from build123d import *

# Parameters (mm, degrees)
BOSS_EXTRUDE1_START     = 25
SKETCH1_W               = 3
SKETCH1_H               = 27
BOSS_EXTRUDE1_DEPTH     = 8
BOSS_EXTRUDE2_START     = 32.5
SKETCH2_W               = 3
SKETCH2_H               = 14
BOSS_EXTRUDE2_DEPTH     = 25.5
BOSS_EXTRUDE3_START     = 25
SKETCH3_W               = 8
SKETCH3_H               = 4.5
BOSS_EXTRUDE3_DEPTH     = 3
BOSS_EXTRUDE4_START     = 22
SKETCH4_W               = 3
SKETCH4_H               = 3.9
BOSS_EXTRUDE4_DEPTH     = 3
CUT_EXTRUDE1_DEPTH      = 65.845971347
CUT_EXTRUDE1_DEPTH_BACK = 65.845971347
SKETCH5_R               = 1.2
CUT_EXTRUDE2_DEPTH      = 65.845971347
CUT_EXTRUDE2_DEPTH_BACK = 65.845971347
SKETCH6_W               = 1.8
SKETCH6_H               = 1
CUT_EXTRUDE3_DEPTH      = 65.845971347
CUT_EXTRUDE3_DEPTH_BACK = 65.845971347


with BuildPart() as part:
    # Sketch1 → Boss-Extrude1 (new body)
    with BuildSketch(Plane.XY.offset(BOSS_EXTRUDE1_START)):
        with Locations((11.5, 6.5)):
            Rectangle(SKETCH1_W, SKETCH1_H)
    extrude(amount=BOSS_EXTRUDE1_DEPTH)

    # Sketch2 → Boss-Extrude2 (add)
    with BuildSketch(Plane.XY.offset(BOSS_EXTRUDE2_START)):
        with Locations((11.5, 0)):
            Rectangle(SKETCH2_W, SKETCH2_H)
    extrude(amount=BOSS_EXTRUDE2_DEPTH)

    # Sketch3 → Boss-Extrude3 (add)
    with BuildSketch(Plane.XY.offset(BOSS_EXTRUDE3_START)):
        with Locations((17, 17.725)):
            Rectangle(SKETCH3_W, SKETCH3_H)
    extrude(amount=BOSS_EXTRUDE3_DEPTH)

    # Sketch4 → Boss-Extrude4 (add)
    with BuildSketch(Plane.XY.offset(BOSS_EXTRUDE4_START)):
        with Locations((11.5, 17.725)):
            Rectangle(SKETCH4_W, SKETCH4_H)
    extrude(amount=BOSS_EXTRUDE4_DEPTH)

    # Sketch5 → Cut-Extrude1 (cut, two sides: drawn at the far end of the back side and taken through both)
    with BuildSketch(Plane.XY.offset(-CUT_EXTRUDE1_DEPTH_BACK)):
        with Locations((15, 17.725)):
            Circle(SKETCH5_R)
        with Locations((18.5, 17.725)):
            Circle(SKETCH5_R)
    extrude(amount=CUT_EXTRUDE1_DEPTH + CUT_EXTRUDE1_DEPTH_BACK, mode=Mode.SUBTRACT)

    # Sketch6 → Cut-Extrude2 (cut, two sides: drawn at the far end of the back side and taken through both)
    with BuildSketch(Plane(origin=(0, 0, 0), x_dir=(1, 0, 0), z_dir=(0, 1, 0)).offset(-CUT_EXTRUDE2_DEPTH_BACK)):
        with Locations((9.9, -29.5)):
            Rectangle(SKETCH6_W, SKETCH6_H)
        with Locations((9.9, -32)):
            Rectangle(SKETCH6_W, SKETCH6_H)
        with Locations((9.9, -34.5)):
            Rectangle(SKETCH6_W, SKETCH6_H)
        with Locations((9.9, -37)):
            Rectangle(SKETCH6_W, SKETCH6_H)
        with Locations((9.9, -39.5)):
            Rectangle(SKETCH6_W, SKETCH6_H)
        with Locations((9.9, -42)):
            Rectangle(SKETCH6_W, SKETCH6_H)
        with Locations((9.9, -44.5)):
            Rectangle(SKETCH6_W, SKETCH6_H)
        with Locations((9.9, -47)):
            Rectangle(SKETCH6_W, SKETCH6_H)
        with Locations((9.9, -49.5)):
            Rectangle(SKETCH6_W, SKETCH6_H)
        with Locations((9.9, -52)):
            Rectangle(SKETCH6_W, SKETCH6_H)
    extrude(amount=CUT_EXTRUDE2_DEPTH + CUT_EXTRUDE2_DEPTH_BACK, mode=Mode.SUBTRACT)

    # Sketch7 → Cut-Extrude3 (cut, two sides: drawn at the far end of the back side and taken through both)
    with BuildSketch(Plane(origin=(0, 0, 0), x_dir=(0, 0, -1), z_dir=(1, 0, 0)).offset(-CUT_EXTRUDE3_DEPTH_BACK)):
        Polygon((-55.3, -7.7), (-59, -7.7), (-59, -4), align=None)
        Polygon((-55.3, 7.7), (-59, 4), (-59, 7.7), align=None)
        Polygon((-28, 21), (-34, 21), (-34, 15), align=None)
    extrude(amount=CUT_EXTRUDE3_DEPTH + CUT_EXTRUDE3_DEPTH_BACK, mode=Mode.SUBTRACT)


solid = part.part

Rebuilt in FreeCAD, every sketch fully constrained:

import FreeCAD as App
import Part
import Sketcher


def add_polygon(sketch, points):
    """Adds a closed chain of lines whose ends are joined by coincident constraints."""
    first, n = sketch.GeometryCount, len(points)
    for a, b in zip(points, points[1:] + points[:1]):
        sketch.addGeometry(Part.LineSegment(App.Vector(*a, 0), App.Vector(*b, 0)), False)
    for i in range(n):
        sketch.addConstraint(Sketcher.Constraint("Coincident", first + i, 2, first + (i + 1) % n, 1))

doc = App.newDocument("Part")
body = doc.addObject("PartDesign::Body", "Body")

sketch1 = body.newObject("Sketcher::SketchObject", "Sketch")
sketch1.AttachmentSupport = (doc.getObject("XY_Plane"), [""])
sketch1.MapMode = "FlatFace"
sketch1.AttachmentOffset = App.Placement(App.Vector(0, 0, 25), App.Rotation())
add_polygon(sketch1, [(10, 20), (10, -7), (13, -7), (13, 20)])
sketch1.addConstraint([
    Sketcher.Constraint("Vertical", 0),
    Sketcher.Constraint("Horizontal", 1),
    Sketcher.Constraint("Vertical", 2),
    Sketcher.Constraint("Horizontal", 3),
    Sketcher.Constraint("DistanceX", 1, 1, 1, 2, 3.0),
    Sketcher.Constraint("DistanceY", 0, 2, 0, 1, 27.0),
    Sketcher.Constraint("DistanceX", -1, 1, 0, 2, 10.0),
    Sketcher.Constraint("DistanceY", 0, 2, -1, 1, 7.0),
])
pad1 = body.newObject("PartDesign::Pad", "Pad")
pad1.Profile = sketch1
pad1.Length = 8

sketch2 = body.newObject("Sketcher::SketchObject", "Sketch001")
sketch2.AttachmentSupport = (doc.getObject("XY_Plane"), [""])
sketch2.MapMode = "FlatFace"
sketch2.AttachmentOffset = App.Placement(App.Vector(0, 0, 32.5), App.Rotation())
add_polygon(sketch2, [(10, 7), (10, -7), (13, -7), (13, 7)])
sketch2.addConstraint([
    Sketcher.Constraint("Vertical", 0),
    Sketcher.Constraint("Horizontal", 1),
    Sketcher.Constraint("Vertical", 2),
    Sketcher.Constraint("Horizontal", 3),
    Sketcher.Constraint("DistanceX", 1, 1, 1, 2, 3.0),
    Sketcher.Constraint("DistanceY", 0, 2, 0, 1, 14.0),
    Sketcher.Constraint("DistanceX", -1, 1, 0, 2, 10.0),
    Sketcher.Constraint("DistanceY", 0, 2, -1, 1, 7.0),
])
pad2 = body.newObject("PartDesign::Pad", "Pad001")
pad2.Profile = sketch2
pad2.Length = 25.5

sketch3 = body.newObject("Sketcher::SketchObject", "Sketch002")
sketch3.AttachmentSupport = (doc.getObject("XY_Plane"), [""])
sketch3.MapMode = "FlatFace"
sketch3.AttachmentOffset = App.Placement(App.Vector(0, 0, 25), App.Rotation())
add_polygon(sketch3, [(13, 20), (13, 15.5), (21, 15.5), (21, 20)])
sketch3.addConstraint([
    Sketcher.Constraint("Vertical", 0),
    Sketcher.Constraint("Horizontal", 1),
    Sketcher.Constraint("Vertical", 2),
    Sketcher.Constraint("Horizontal", 3),
    Sketcher.Constraint("DistanceX", 1, 1, 1, 2, 8.0),
    Sketcher.Constraint("DistanceY", 0, 2, 0, 1, 4.5),
    Sketcher.Constraint("DistanceX", -1, 1, 0, 2, 13.0),
    Sketcher.Constraint("DistanceY", -1, 1, 0, 2, 15.475),
])
pad3 = body.newObject("PartDesign::Pad", "Pad002")
pad3.Profile = sketch3
pad3.Length = 3

sketch4 = body.newObject("Sketcher::SketchObject", "Sketch003")
sketch4.AttachmentSupport = (doc.getObject("XY_Plane"), [""])
sketch4.MapMode = "FlatFace"
sketch4.AttachmentOffset = App.Placement(App.Vector(0, 0, 22), App.Rotation())
add_polygon(sketch4, [(10, 19.7), (10, 15.8), (13, 15.8), (13, 19.7)])
sketch4.addConstraint([
    Sketcher.Constraint("Vertical", 0),
    Sketcher.Constraint("Horizontal", 1),
    Sketcher.Constraint("Vertical", 2),
    Sketcher.Constraint("Horizontal", 3),
    Sketcher.Constraint("DistanceX", 1, 1, 1, 2, 3.0),
    Sketcher.Constraint("DistanceY", 0, 2, 0, 1, 3.9),
    Sketcher.Constraint("DistanceX", -1, 1, 0, 2, 10.0),
    Sketcher.Constraint("DistanceY", -1, 1, 0, 2, 15.775),
])
pad4 = body.newObject("PartDesign::Pad", "Pad003")
pad4.Profile = sketch4
pad4.Length = 3

sketch5 = body.newObject("Sketcher::SketchObject", "Sketch004")
sketch5.AttachmentSupport = (doc.getObject("XY_Plane"), [""])
sketch5.MapMode = "FlatFace"
sketch5.addGeometry([
    Part.Circle(App.Vector(15, 17.7, 0), App.Vector(0, 0, 1), 1.2),
    Part.Circle(App.Vector(18.5, 17.7, 0), App.Vector(0, 0, 1), 1.2),
], False)
sketch5.addConstraint([
    Sketcher.Constraint("Equal", 0, 1),
    Sketcher.Constraint("Horizontal", 0, 3, 1, 3),
    Sketcher.Constraint("Diameter", 0, 2.4),
    Sketcher.Constraint("DistanceX", -1, 1, 0, 3, 15.0),
    Sketcher.Constraint("DistanceX", -1, 1, 1, 3, 18.5),
    Sketcher.Constraint("DistanceY", -1, 1, 0, 3, 17.725),
])
pocket1 = body.newObject("PartDesign::Pocket", "Pocket")
pocket1.Profile = sketch5
pocket1.Type = "ThroughAll"
pocket1.Midplane = True

sketch6 = body.newObject("Sketcher::SketchObject", "Sketch005")
sketch6.AttachmentSupport = (doc.getObject("XZ_Plane"), [""])
sketch6.MapMode = "FlatFace"
add_polygon(sketch6, [(9, 29), (9, 30), (10.8, 30), (10.8, 29)])
add_polygon(sketch6, [(9, 31.5), (9, 32.5), (10.8, 32.5), (10.8, 31.5)])
add_polygon(sketch6, [(9, 34), (9, 35), (10.8, 35), (10.8, 34)])
add_polygon(sketch6, [(9, 36.5), (9, 37.5), (10.8, 37.5), (10.8, 36.5)])
add_polygon(sketch6, [(9, 39), (9, 40), (10.8, 40), (10.8, 39)])
add_polygon(sketch6, [(9, 41.5), (9, 42.5), (10.8, 42.5), (10.8, 41.5)])
add_polygon(sketch6, [(9, 44), (9, 45), (10.8, 45), (10.8, 44)])
add_polygon(sketch6, [(9, 46.5), (9, 47.5), (10.8, 47.5), (10.8, 46.5)])
add_polygon(sketch6, [(9, 49), (9, 50), (10.8, 50), (10.8, 49)])
add_polygon(sketch6, [(9, 51.5), (9, 52.5), (10.8, 52.5), (10.8, 51.5)])
sketch6.addConstraint([
    Sketcher.Constraint("Vertical", 0),
    Sketcher.Constraint("Horizontal", 1),
    Sketcher.Constraint("Vertical", 2),
    Sketcher.Constraint("Horizontal", 3),
    Sketcher.Constraint("Vertical", 4),
    Sketcher.Constraint("Horizontal", 5),
    Sketcher.Constraint("Vertical", 6),
    Sketcher.Constraint("Horizontal", 7),
    Sketcher.Constraint("Vertical", 8),
    Sketcher.Constraint("Horizontal", 9),
    Sketcher.Constraint("Vertical", 10),
    Sketcher.Constraint("Horizontal", 11),
    Sketcher.Constraint("Vertical", 12),
    Sketcher.Constraint("Horizontal", 13),
    Sketcher.Constraint("Vertical", 14),
    Sketcher.Constraint("Horizontal", 15),
    Sketcher.Constraint("Vertical", 16),
    Sketcher.Constraint("Horizontal", 17),
    Sketcher.Constraint("Vertical", 18),
    Sketcher.Constraint("Horizontal", 19),
    Sketcher.Constraint("Vertical", 20),
    Sketcher.Constraint("Horizontal", 21),
    Sketcher.Constraint("Vertical", 22),
    Sketcher.Constraint("Horizontal", 23),
    Sketcher.Constraint("Vertical", 24),
    Sketcher.Constraint("Horizontal", 25),
    Sketcher.Constraint("Vertical", 26),
    Sketcher.Constraint("Horizontal", 27),
    Sketcher.Constraint("Vertical", 28),
    Sketcher.Constraint("Horizontal", 29),
    Sketcher.Constraint("Vertical", 30),
    Sketcher.Constraint("Horizontal", 31),
    Sketcher.Constraint("Vertical", 32),
    Sketcher.Constraint("Horizontal", 33),
    Sketcher.Constraint("Vertical", 34),
    Sketcher.Constraint("Horizontal", 35),
    Sketcher.Constraint("Vertical", 36),
    Sketcher.Constraint("Horizontal", 37),
    Sketcher.Constraint("Vertical", 38),
    Sketcher.Constraint("Horizontal", 39),
    Sketcher.Constraint("Vertical", 3, 2, 4, 2),
    Sketcher.Constraint("Vertical", 2, 2, 5, 2),
    Sketcher.Constraint("Vertical", 7, 2, 8, 2),
    Sketcher.Constraint("Vertical", 6, 2, 9, 2),
    Sketcher.Constraint("Vertical", 11, 2, 12, 2),
    Sketcher.Constraint("Vertical", 10, 2, 13, 2),
    Sketcher.Constraint("Vertical", 15, 2, 16, 2),
    Sketcher.Constraint("Vertical", 14, 2, 17, 2),
    Sketcher.Constraint("Vertical", 19, 2, 20, 2),
    Sketcher.Constraint("Vertical", 18, 2, 21, 2),
    Sketcher.Constraint("Vertical", 23, 2, 24, 2),
    Sketcher.Constraint("Vertical", 22, 2, 25, 2),
    Sketcher.Constraint("Vertical", 27, 2, 28, 2),
    Sketcher.Constraint("Vertical", 26, 2, 29, 2),
    Sketcher.Constraint("Vertical", 31, 2, 32, 2),
    Sketcher.Constraint("Vertical", 30, 2, 33, 2),
    Sketcher.Constraint("Vertical", 35, 2, 36, 2),
    Sketcher.Constraint("Vertical", 34, 2, 37, 2),
    Sketcher.Constraint("Equal", 2, 4),
    Sketcher.Constraint("Equal", 6, 8),
    Sketcher.Constraint("Equal", 10, 12),
    Sketcher.Constraint("Equal", 14, 16),
    Sketcher.Constraint("Equal", 18, 20),
    Sketcher.Constraint("Equal", 22, 24),
    Sketcher.Constraint("Equal", 26, 28),
    Sketcher.Constraint("Equal", 30, 32),
    Sketcher.Constraint("Equal", 34, 36),
    Sketcher.Constraint("DistanceY", 0, 1, 0, 2, 1.0),
    Sketcher.Constraint("DistanceX", 1, 1, 1, 2, 1.8),
    Sketcher.Constraint("DistanceX", -1, 1, 0, 2, 9.0),
    Sketcher.Constraint("DistanceY", -1, 1, 0, 2, 30.0),
    Sketcher.Constraint("DistanceY", -1, 1, 8, 2, 35.0),
    Sketcher.Constraint("DistanceY", -1, 1, 16, 2, 40.0),
    Sketcher.Constraint("DistanceY", -1, 1, 24, 2, 45.0),
    Sketcher.Constraint("DistanceY", -1, 1, 32, 2, 50.0),
    Sketcher.Constraint("DistanceY", 4, 2, 12, 2, 5.0),
    Sketcher.Constraint("DistanceY", 12, 2, 20, 2, 5.0),
    Sketcher.Constraint("DistanceY", 20, 2, 28, 2, 5.0),
    Sketcher.Constraint("DistanceY", 28, 2, 36, 2, 5.0),
    Sketcher.Constraint("DistanceY", -1, 1, 4, 2, 32.5),
])
pocket2 = body.newObject("PartDesign::Pocket", "Pocket001")
pocket2.Profile = sketch6
pocket2.Type = "ThroughAll"
pocket2.Midplane = True

sketch7 = body.newObject("Sketcher::SketchObject", "Sketch006")
sketch7.AttachmentSupport = (doc.getObject("YZ_Plane"), [""])
sketch7.MapMode = "FlatFace"
add_polygon(sketch7, [(-7.7, 59), (-7.7, 55.3), (-4, 59)])
add_polygon(sketch7, [(4, 59), (7.7, 55.3), (7.7, 59)])
add_polygon(sketch7, [(21, 28), (21, 34), (15, 34)])
sketch7.addConstraint([
    Sketcher.Constraint("Vertical", 0),
    Sketcher.Constraint("Horizontal", 2),
    Sketcher.Constraint("Vertical", 4),
    Sketcher.Constraint("Horizontal", 5),
    Sketcher.Constraint("Vertical", 6),
    Sketcher.Constraint("Horizontal", 7),
    Sketcher.Constraint("Symmetric", 0, 2, 3, 2, -2),
    Sketcher.Constraint("Symmetric", 1, 2, 5, 2, -2),
    Sketcher.Constraint("Perpendicular", 1, 3),
    Sketcher.Constraint("Parallel", 3, 8),
    Sketcher.Constraint("DistanceX", 7, 2, 7, 1, 6.0),
    Sketcher.Constraint("DistanceX", 2, 2, 2, 1, 3.7),
    Sketcher.Constraint("DistanceX", 1, 2, -1, 1, 4.0),
    Sketcher.Constraint("DistanceY", -1, 1, 1, 2, 59.0),
    Sketcher.Constraint("DistanceX", -1, 1, 6, 2, 21.0),
    Sketcher.Constraint("DistanceY", -1, 1, 6, 2, 34.0),
])
pocket3 = body.newObject("PartDesign::Pocket", "Pocket002")
pocket3.Profile = sketch7
pocket3.Type = "ThroughAll"
pocket3.Midplane = True

doc.recompute()
